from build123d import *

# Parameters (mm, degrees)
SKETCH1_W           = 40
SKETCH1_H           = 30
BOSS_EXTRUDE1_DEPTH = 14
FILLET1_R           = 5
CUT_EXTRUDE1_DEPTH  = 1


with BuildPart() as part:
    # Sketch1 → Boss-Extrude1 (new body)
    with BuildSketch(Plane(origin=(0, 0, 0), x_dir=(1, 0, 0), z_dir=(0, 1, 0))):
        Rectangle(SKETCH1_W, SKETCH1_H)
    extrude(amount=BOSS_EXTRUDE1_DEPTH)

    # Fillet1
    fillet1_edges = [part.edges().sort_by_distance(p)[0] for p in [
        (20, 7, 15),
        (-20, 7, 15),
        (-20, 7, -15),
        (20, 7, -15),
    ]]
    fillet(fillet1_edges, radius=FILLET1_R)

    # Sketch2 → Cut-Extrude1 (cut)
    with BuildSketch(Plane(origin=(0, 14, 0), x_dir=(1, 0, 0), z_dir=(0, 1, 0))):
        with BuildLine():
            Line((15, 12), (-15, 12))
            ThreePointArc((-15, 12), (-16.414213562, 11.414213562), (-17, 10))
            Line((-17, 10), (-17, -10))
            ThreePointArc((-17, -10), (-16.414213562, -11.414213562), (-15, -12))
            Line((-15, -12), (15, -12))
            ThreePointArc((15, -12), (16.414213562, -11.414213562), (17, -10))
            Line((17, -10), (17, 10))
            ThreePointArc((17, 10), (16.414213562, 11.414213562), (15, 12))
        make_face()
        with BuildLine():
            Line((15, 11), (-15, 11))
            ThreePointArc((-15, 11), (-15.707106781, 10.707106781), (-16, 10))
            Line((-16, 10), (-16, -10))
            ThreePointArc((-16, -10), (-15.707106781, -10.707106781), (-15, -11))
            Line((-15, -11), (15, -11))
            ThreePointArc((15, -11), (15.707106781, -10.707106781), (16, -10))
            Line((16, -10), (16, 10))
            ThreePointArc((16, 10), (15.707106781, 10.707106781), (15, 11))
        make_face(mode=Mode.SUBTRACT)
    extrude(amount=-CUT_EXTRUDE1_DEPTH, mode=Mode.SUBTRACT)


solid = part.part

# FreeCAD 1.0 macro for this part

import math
import FreeCAD as App
import Part
import Sketcher

V = App.Vector


def edges_at(feature, points):
    """Names of the edges that pass closest to the given points."""
    edges = feature.Shape.Edges
    near = lambda p: min(range(len(edges)), key=lambda i: edges[i].distToShape(Part.Vertex(*p))[0])
    return sorted({f"Edge{near(p) + 1}" for p in points})

doc = App.newDocument("Part")
body = doc.addObject("PartDesign::Body", "Body")

# Sketch on XZ plane
sketch1 = doc.addObject("Sketcher::SketchObject", "Sketch")
body.addObject(sketch1)
sketch1.AttachmentSupport = (doc.XZ_Plane, [""])
sketch1.MapMode = "FlatFace"
sketch1.addGeometry([
    Part.LineSegment(V(-20, -15, 0), V(-20, 15, 0)),
    Part.LineSegment(V(-20, 15, 0), V(20, 15, 0)),
    Part.LineSegment(V(20, 15, 0), V(20, -15, 0)),
    Part.LineSegment(V(20, -15, 0), V(-20, -15, 0)),
], False)
sketch1.addConstraint([
    Sketcher.Constraint("Coincident", 0, 2, 1, 1),
    Sketcher.Constraint("Coincident", 1, 2, 2, 1),
    Sketcher.Constraint("Coincident", 2, 2, 3, 1),
    Sketcher.Constraint("Coincident", 3, 2, 0, 1),
    Sketcher.Constraint("Vertical", 0),
    Sketcher.Constraint("Horizontal", 1),
    Sketcher.Constraint("Vertical", 2),
    Sketcher.Constraint("Horizontal", 3),
    Sketcher.Constraint("Symmetric", 0, 2, 2, 2, -1, 1),
    Sketcher.Constraint("DistanceX", 1, 1, 1, 2, 40.0),
    Sketcher.Constraint("DistanceY", 0, 1, 0, 2, 30.0),
])
pad1 = doc.addObject("PartDesign::Pad", "Pad")
body.addObject(pad1)
pad1.Profile = sketch1
pad1.Length = 14
pad1.Reversed = True
doc.recompute()

fillet = doc.addObject("PartDesign::Fillet", "Fillet")
body.addObject(fillet)
fillet.Base = (pad1, edges_at(pad1, [
    (20, 7, 15),
    (-20, 7, 15),
    (-20, 7, -15),
    (20, 7, -15),
]))
fillet.Radius = 5

# Sketch on XZ plane
sketch2 = doc.addObject("Sketcher::SketchObject", "Sketch001")
body.addObject(sketch2)
sketch2.AttachmentSupport = (doc.XZ_Plane, [""])
sketch2.MapMode = "FlatFace"
sketch2.AttachmentOffset = App.Placement(V(0, 0, -14), App.Rotation())
sketch2.addGeometry([
    Part.LineSegment(V(15, -12, 0), V(-15, -12, 0)),  # 0
    Part.ArcOfCircle(Part.Circle(V(-15, -10, 0), V(0, 0, 1), 2), math.radians(-180), math.radians(-90)),  # 1
    Part.LineSegment(V(-17, -10, 0), V(-17, 10, 0)),  # 2
    Part.ArcOfCircle(Part.Circle(V(-15, 10, 0), V(0, 0, 1), 2), math.radians(90), math.radians(180)),  # 3
    Part.LineSegment(V(-15, 12, 0), V(15, 12, 0)),  # 4
    Part.ArcOfCircle(Part.Circle(V(15, 10, 0), V(0, 0, 1), 2), math.radians(0), math.radians(90)),  # 5
    Part.LineSegment(V(17, 10, 0), V(17, -10, 0)),  # 6
    Part.ArcOfCircle(Part.Circle(V(15, -10, 0), V(0, 0, 1), 2), math.radians(-90), math.radians(0)),  # 7
    Part.LineSegment(V(-15, -11, 0), V(15, -11, 0)),  # 8
    Part.ArcOfCircle(Part.Circle(V(15, -10, 0), V(0, 0, 1), 1), math.radians(-90), math.radians(0)),  # 9
    Part.LineSegment(V(16, -10, 0), V(16, 10, 0)),  # 10
    Part.ArcOfCircle(Part.Circle(V(15, 10, 0), V(0, 0, 1), 1), math.radians(0), math.radians(90)),  # 11
    Part.LineSegment(V(15, 11, 0), V(-15, 11, 0)),  # 12
    Part.ArcOfCircle(Part.Circle(V(-15, 10, 0), V(0, 0, 1), 1), math.radians(90), math.radians(180)),  # 13
    Part.LineSegment(V(-16, 10, 0), V(-16, -10, 0)),  # 14
    Part.ArcOfCircle(Part.Circle(V(-15, -10, 0), V(0, 0, 1), 1), math.radians(-180), math.radians(-90)),  # 15
], False)
sketch2.addConstraint([
    Sketcher.Constraint("Tangent", 0, 2, 1, 2),
    Sketcher.Constraint("Tangent", 1, 1, 2, 1),
    Sketcher.Constraint("Tangent", 2, 2, 3, 2),
    Sketcher.Constraint("Tangent", 3, 1, 4, 1),
    Sketcher.Constraint("Tangent", 4, 2, 5, 2),
    Sketcher.Constraint("Tangent", 5, 1, 6, 1),
    Sketcher.Constraint("Tangent", 6, 2, 7, 2),
    Sketcher.Constraint("Tangent", 7, 1, 0, 1),
    Sketcher.Constraint("Tangent", 8, 2, 9, 1),
    Sketcher.Constraint("Tangent", 9, 2, 10, 1),
    Sketcher.Constraint("Tangent", 10, 2, 11, 1),
    Sketcher.Constraint("Tangent", 11, 2, 12, 1),
    Sketcher.Constraint("Tangent", 12, 2, 13, 1),
    Sketcher.Constraint("Tangent", 13, 2, 14, 1),
    Sketcher.Constraint("Tangent", 14, 2, 15, 1),
    Sketcher.Constraint("Tangent", 15, 2, 8, 1),
    Sketcher.Constraint("Horizontal", 0),
    Sketcher.Constraint("Vertical", 2),
    Sketcher.Constraint("Horizontal", 4),
    Sketcher.Constraint("Vertical", 6),
    Sketcher.Constraint("Horizontal", 8),
    Sketcher.Constraint("Vertical", 10),
    Sketcher.Constraint("Horizontal", 12),
    Sketcher.Constraint("Vertical", 14),
    Sketcher.Constraint("Coincident", 9, 3, 7, 3),
    Sketcher.Constraint("Coincident", 11, 3, 5, 3),
    Sketcher.Constraint("Coincident", 13, 3, 3, 3),
    Sketcher.Constraint("Equal", 1, 3),
    Sketcher.Constraint("Equal", 3, 5),
    Sketcher.Constraint("Equal", 5, 7),
    Sketcher.Constraint("Equal", 13, 15),
    Sketcher.Constraint("Symmetric", 1, 3, 5, 3, -1, 1),
    Sketcher.Constraint("Radius", 1, 2.0),
    Sketcher.Constraint("Radius", 9, 1.0),
    Sketcher.Constraint("DistanceX", 0, 2, 0, 1, 30.0),
    Sketcher.Constraint("DistanceY", 2, 1, 2, 2, 20.0),
])
pocket1 = doc.addObject("PartDesign::Pocket", "Pocket")
body.addObject(pocket1)
pocket1.Profile = sketch2
pocket1.Length = 1
pocket1.Reversed = True

doc.recompute()
